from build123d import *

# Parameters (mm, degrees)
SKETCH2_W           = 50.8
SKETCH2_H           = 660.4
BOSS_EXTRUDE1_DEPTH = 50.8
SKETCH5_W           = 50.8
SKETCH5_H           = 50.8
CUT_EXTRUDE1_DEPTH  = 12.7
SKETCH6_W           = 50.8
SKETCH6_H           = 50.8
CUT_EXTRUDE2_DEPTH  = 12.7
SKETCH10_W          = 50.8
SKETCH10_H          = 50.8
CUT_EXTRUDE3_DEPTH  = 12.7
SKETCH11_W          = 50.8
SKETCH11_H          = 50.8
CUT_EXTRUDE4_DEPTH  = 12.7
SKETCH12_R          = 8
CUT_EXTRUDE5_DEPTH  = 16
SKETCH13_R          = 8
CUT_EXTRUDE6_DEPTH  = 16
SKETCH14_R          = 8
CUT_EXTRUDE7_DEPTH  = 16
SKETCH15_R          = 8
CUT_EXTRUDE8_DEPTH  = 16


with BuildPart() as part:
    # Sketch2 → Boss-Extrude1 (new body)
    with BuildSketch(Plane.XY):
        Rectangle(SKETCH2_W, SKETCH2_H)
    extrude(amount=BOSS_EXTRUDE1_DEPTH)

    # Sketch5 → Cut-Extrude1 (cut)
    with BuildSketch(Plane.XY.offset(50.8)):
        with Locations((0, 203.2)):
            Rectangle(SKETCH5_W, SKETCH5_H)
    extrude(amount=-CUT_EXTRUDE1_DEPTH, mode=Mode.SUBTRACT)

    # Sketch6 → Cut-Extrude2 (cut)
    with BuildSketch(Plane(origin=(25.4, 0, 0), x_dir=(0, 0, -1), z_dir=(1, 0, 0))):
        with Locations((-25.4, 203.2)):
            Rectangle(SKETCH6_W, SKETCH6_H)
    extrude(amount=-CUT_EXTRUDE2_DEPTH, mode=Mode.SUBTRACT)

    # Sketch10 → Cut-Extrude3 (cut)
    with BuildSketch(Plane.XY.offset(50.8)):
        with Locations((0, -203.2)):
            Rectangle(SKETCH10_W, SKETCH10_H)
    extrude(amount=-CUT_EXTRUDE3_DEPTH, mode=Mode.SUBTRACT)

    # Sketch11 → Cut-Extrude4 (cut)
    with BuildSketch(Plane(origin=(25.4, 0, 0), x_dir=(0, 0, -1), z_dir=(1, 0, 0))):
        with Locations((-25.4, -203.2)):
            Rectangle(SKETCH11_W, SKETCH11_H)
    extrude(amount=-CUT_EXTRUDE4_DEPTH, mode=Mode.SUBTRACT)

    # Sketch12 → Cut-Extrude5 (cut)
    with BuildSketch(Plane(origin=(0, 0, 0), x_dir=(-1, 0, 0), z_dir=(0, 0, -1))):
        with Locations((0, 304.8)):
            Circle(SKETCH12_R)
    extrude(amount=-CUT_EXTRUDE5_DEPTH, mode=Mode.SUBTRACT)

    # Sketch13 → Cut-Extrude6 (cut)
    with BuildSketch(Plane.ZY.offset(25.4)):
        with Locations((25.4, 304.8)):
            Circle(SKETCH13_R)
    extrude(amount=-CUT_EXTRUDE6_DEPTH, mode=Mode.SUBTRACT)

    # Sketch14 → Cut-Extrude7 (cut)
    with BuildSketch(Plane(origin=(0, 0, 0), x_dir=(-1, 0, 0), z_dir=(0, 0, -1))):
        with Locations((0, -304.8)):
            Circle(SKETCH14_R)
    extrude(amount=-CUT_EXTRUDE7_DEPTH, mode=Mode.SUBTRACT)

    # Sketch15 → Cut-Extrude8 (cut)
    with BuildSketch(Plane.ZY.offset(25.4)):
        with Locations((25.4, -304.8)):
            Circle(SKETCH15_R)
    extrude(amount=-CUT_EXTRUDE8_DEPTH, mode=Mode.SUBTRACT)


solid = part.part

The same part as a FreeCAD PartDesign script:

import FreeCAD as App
import Part
import Sketcher
Q = App.Units.Quantity

doc = App.newDocument("Part")
body = doc.addObject("PartDesign::Body", "Body")

# Sketch on XY plane
sketch1 = body.newObject("Sketcher::SketchObject", "Sketch")
sketch1.AttachmentSupport = (doc.getObject("XY_Plane"), [""])
sketch1.MapMode = "FlatFace"
sketch1.addGeometry(Part.LineSegment(App.Vector(-25.4, 330.2, 0), App.Vector(-25.4, -330.2, 0)), False)
sketch1.addGeometry(Part.LineSegment(App.Vector(-25.4, -330.2, 0), App.Vector(25.4, -330.2, 0)), False)
sketch1.addGeometry(Part.LineSegment(App.Vector(25.4, -330.2, 0), App.Vector(25.4, 330.2, 0)), False)
sketch1.addGeometry(Part.LineSegment(App.Vector(25.4, 330.2, 0), App.Vector(-25.4, 330.2, 0)), False)
sketch1.addConstraint(Sketcher.Constraint("Coincident", 0, 2, 1, 1))
sketch1.addConstraint(Sketcher.Constraint("Coincident", 1, 2, 2, 1))
sketch1.addConstraint(Sketcher.Constraint("Coincident", 2, 2, 3, 1))
sketch1.addConstraint(Sketcher.Constraint("Coincident", 3, 2, 0, 1))
sketch1.addConstraint(Sketcher.Constraint("Vertical", 0))
sketch1.addConstraint(Sketcher.Constraint("Horizontal", 1))
sketch1.addConstraint(Sketcher.Constraint("Vertical", 2))
sketch1.addConstraint(Sketcher.Constraint("Horizontal", 3))
sketch1.addConstraint(Sketcher.Constraint("Symmetric", 0, 2, 2, 2, -1, 1))
sketch1.addConstraint(Sketcher.Constraint("DistanceX", 1, 1, 1, 2, Q("2 in")))
sketch1.addConstraint(Sketcher.Constraint("DistanceY", 0, 2, 0, 1, Q("26 in")))
pad1 = body.newObject("PartDesign::Pad", "Pad")
pad1.Profile = sketch1
pad1.Length = Q("2 in")

# Sketch on XY plane
sketch2 = body.newObject("Sketcher::SketchObject", "Sketch001")
sketch2.AttachmentSupport = (doc.getObject("XY_Plane"), [""])
sketch2.MapMode = "FlatFace"
sketch2.AttachmentOffset = App.Placement(App.Vector(0, 0, 2 * 25.4), App.Rotation())
sketch2.addGeometry(Part.LineSegment(App.Vector(-25.4, 228.6, 0), App.Vector(-25.4, 177.8, 0)), False)
sketch2.addGeometry(Part.LineSegment(App.Vector(-25.4, 177.8, 0), App.Vector(25.4, 177.8, 0)), False)
sketch2.addGeometry(Part.LineSegment(App.Vector(25.4, 177.8, 0), App.Vector(25.4, 228.6, 0)), False)
sketch2.addGeometry(Part.LineSegment(App.Vector(25.4, 228.6, 0), App.Vector(-25.4, 228.6, 0)), False)
sketch2.addConstraint(Sketcher.Constraint("Coincident", 0, 2, 1, 1))
sketch2.addConstraint(Sketcher.Constraint("Coincident", 1, 2, 2, 1))
sketch2.addConstraint(Sketcher.Constraint("Coincident", 2, 2, 3, 1))
sketch2.addConstraint(Sketcher.Constraint("Coincident", 3, 2, 0, 1))
sketch2.addConstraint(Sketcher.Constraint("Vertical", 0))
sketch2.addConstraint(Sketcher.Constraint("Horizontal", 1))
sketch2.addConstraint(Sketcher.Constraint("Vertical", 2))
sketch2.addConstraint(Sketcher.Constraint("Horizontal", 3))
sketch2.addConstraint(Sketcher.Constraint("Equal", 3, 0))
sketch2.addConstraint(Sketcher.Constraint("DistanceX", 1, 1, 1, 2, Q("2 in")))
sketch2.addConstraint(Sketcher.Constraint("DistanceX", 0, 2, -1, 1, Q("1 in")))
sketch2.addConstraint(Sketcher.Constraint("DistanceY", -1, 1, 0, 2, Q("7 in")))
pocket1 = body.newObject("PartDesign::Pocket", "Pocket")
pocket1.Profile = sketch2
pocket1.Length = Q("0.5 in")

# Sketch on YZ plane
sketch3 = body.newObject("Sketcher::SketchObject", "Sketch002")
sketch3.AttachmentSupport = (doc.getObject("YZ_Plane"), [""])
sketch3.MapMode = "FlatFace"
sketch3.AttachmentOffset = App.Placement(App.Vector(0, 0, 1 * 25.4), App.Rotation())
sketch3.addGeometry(Part.LineSegment(App.Vector(228.6, 50.8, 0), App.Vector(177.8, 50.8, 0)), False)
sketch3.addGeometry(Part.LineSegment(App.Vector(177.8, 50.8, 0), App.Vector(177.8, 0, 0)), False)
sketch3.addGeometry(Part.LineSegment(App.Vector(177.8, 0, 0), App.Vector(228.6, 0, 0)), False)
sketch3.addGeometry(Part.LineSegment(App.Vector(228.6, 0, 0), App.Vector(228.6, 50.8, 0)), False)
sketch3.addConstraint(Sketcher.Constraint("Coincident", 0, 2, 1, 1))
sketch3.addConstraint(Sketcher.Constraint("Coincident", 1, 2, 2, 1))
sketch3.addConstraint(Sketcher.Constraint("Coincident", 2, 2, 3, 1))
sketch3.addConstraint(Sketcher.Constraint("Coincident", 3, 2, 0, 1))
sketch3.addConstraint(Sketcher.Constraint("Horizontal", 0))
sketch3.addConstraint(Sketcher.Constraint("Vertical", 1))
sketch3.addConstraint(Sketcher.Constraint("Horizontal", 2))
sketch3.addConstraint(Sketcher.Constraint("Vertical", 3))
sketch3.addConstraint(Sketcher.Constraint("PointOnObject", 1, 2, -1))
sketch3.addConstraint(Sketcher.Constraint("Equal", 2, 1))
sketch3.addConstraint(Sketcher.Constraint("DistanceX", 0, 2, 0, 1, Q("2 in")))
sketch3.addConstraint(Sketcher.Constraint("DistanceX", -1, 1, 0, 2, Q("7 in")))
pocket2 = body.newObject("PartDesign::Pocket", "Pocket001")
pocket2.Profile = sketch3
pocket2.Length = Q("0.5 in")

# Sketch on XY plane
sketch4 = body.newObject("Sketcher::SketchObject", "Sketch003")
sketch4.AttachmentSupport = (doc.getObject("XY_Plane"), [""])
sketch4.MapMode = "FlatFace"
sketch4.AttachmentOffset = App.Placement(App.Vector(0, 0, 2 * 25.4), App.Rotation())
sketch4.addGeometry(Part.LineSegment(App.Vector(-25.4, -177.8, 0), App.Vector(-25.4, -228.6, 0)), False)
sketch4.addGeometry(Part.LineSegment(App.Vector(-25.4, -228.6, 0), App.Vector(25.4, -228.6, 0)), False)
sketch4.addGeometry(Part.LineSegment(App.Vector(25.4, -228.6, 0), App.Vector(25.4, -177.8, 0)), False)
sketch4.addGeometry(Part.LineSegment(App.Vector(25.4, -177.8, 0), App.Vector(-25.4, -177.8, 0)), False)
sketch4.addConstraint(Sketcher.Constraint("Coincident", 0, 2, 1, 1))
sketch4.addConstraint(Sketcher.Constraint("Coincident", 1, 2, 2, 1))
sketch4.addConstraint(Sketcher.Constraint("Coincident", 2, 2, 3, 1))
sketch4.addConstraint(Sketcher.Constraint("Coincident", 3, 2, 0, 1))
sketch4.addConstraint(Sketcher.Constraint("Vertical", 0))
sketch4.addConstraint(Sketcher.Constraint("Horizontal", 1))
sketch4.addConstraint(Sketcher.Constraint("Vertical", 2))
sketch4.addConstraint(Sketcher.Constraint("Horizontal", 3))
sketch4.addConstraint(Sketcher.Constraint("Equal", 3, 0))
sketch4.addConstraint(Sketcher.Constraint("DistanceX", 1, 1, 1, 2, Q("2 in")))
sketch4.addConstraint(Sketcher.Constraint("DistanceX", 0, 2, -1, 1, Q("1 in")))
sketch4.addConstraint(Sketcher.Constraint("DistanceY", 0, 2, -1, 1, Q("9 in")))
pocket3 = body.newObject("PartDesign::Pocket", "Pocket002")
pocket3.Profile = sketch4
pocket3.Length = Q("0.5 in")

# Sketch on YZ plane
sketch5 = body.newObject("Sketcher::SketchObject", "Sketch004")
sketch5.AttachmentSupport = (doc.getObject("YZ_Plane"), [""])
sketch5.MapMode = "FlatFace"
sketch5.AttachmentOffset = App.Placement(App.Vector(0, 0, 1 * 25.4), App.Rotation())
sketch5.addGeometry(Part.LineSegment(App.Vector(-177.8, 50.8, 0), App.Vector(-228.6, 50.8, 0)), False)
sketch5.addGeometry(Part.LineSegment(App.Vector(-228.6, 50.8, 0), App.Vector(-228.6, 0, 0)), False)
sketch5.addGeometry(Part.LineSegment(App.Vector(-228.6, 0, 0), App.Vector(-177.8, 0, 0)), False)
sketch5.addGeometry(Part.LineSegment(App.Vector(-177.8, 0, 0), App.Vector(-177.8, 50.8, 0)), False)
sketch5.addConstraint(Sketcher.Constraint("Coincident", 0, 2, 1, 1))
sketch5.addConstraint(Sketcher.Constraint("Coincident", 1, 2, 2, 1))
sketch5.addConstraint(Sketcher.Constraint("Coincident", 2, 2, 3, 1))
sketch5.addConstraint(Sketcher.Constraint("Coincident", 3, 2, 0, 1))
sketch5.addConstraint(Sketcher.Constraint("Horizontal", 0))
sketch5.addConstraint(Sketcher.Constraint("Vertical", 1))
sketch5.addConstraint(Sketcher.Constraint("Horizontal", 2))
sketch5.addConstraint(Sketcher.Constraint("Vertical", 3))
sketch5.addConstraint(Sketcher.Constraint("PointOnObject", 1, 2, -1))
sketch5.addConstraint(Sketcher.Constraint("Equal", 2, 1))
sketch5.addConstraint(Sketcher.Constraint("DistanceX", 0, 2, 0, 1, Q("2 in")))
sketch5.addConstraint(Sketcher.Constraint("DistanceX", 0, 2, -1, 1, Q("9 in")))
pocket4 = body.newObject("PartDesign::Pocket", "Pocket003")
pocket4.Profile = sketch5
pocket4.Length = Q("0.5 in")

# Sketch on XY plane
sketch6 = body.newObject("Sketcher::SketchObject", "Sketch005")
sketch6.AttachmentSupport = (doc.getObject("XY_Plane"), [""])
sketch6.MapMode = "FlatFace"
sketch6.addGeometry(Part.Circle(App.Vector(0, 304.8, 0), App.Vector(0, 0, 1), 8), False)
sketch6.addConstraint(Sketcher.Constraint("PointOnObject", 0, 3, -2))
sketch6.addConstraint(Sketcher.Constraint("DistanceY", -1, 1, 0, 3, Q("12 in")))
sketch6.addConstraint(Sketcher.Constraint("Diameter", 0, Q("16 mm")))
pocket5 = body.newObject("PartDesign::Pocket", "Pocket004")
pocket5.Profile = sketch6
pocket5.Length = 16
pocket5.Reversed = True

# Sketch on YZ plane
sketch7 = body.newObject("Sketcher::SketchObject", "Sketch006")
sketch7.AttachmentSupport = (doc.getObject("YZ_Plane"), [""])
sketch7.MapMode = "FlatFace"
sketch7.AttachmentOffset = App.Placement(App.Vector(0, 0, -1 * 25.4), App.Rotation())
sketch7.addGeometry(Part.Circle(App.Vector(304.8, 25.4, 0), App.Vector(0, 0, 1), 8), False)
sketch7.addConstraint(Sketcher.Constraint("DistanceX", -1, 1, 0, 3, Q("12 in")))
sketch7.addConstraint(Sketcher.Constraint("DistanceY", -1, 1, 0, 3, Q("1 in")))
sketch7.addConstraint(Sketcher.Constraint("Diameter", 0, Q("16 mm")))
pocket6 = body.newObject("PartDesign::Pocket", "Pocket005")
pocket6.Profile = sketch7
pocket6.Length = 16
pocket6.Reversed = True

# Sketch on XY plane
sketch8 = body.newObject("Sketcher::SketchObject", "Sketch007")
sketch8.AttachmentSupport = (doc.getObject("XY_Plane"), [""])
sketch8.MapMode = "FlatFace"
sketch8.addGeometry(Part.Circle(App.Vector(0, -304.8, 0), App.Vector(0, 0, 1), 8), False)
sketch8.addConstraint(Sketcher.Constraint("PointOnObject", 0, 3, -2))
sketch8.addConstraint(Sketcher.Constraint("DistanceY", 0, 3, -1, 1, Q("12 in")))
sketch8.addConstraint(Sketcher.Constraint("Diameter", 0, Q("16 mm")))
pocket7 = body.newObject("PartDesign::Pocket", "Pocket006")
pocket7.Profile = sketch8
pocket7.Length = 16
pocket7.Reversed = True

# Sketch on YZ plane
sketch9 = body.newObject("Sketcher::SketchObject", "Sketch008")
sketch9.AttachmentSupport = (doc.getObject("YZ_Plane"), [""])
sketch9.MapMode = "FlatFace"
sketch9.AttachmentOffset = App.Placement(App.Vector(0, 0, -1 * 25.4), App.Rotation())
sketch9.addGeometry(Part.Circle(App.Vector(-304.8, 25.4, 0), App.Vector(0, 0, 1), 8), False)
sketch9.addConstraint(Sketcher.Constraint("DistanceX", 0, 3, -1, 1, Q("12 in")))
sketch9.addConstraint(Sketcher.Constraint("DistanceY", -1, 1, 0, 3, Q("1 in")))
sketch9.addConstraint(Sketcher.Constraint("Diameter", 0, Q("16 mm")))
pocket8 = body.newObject("PartDesign::Pocket", "Pocket007")
pocket8.Profile = sketch9
pocket8.Length = 16
pocket8.Reversed = True

doc.recompute()
